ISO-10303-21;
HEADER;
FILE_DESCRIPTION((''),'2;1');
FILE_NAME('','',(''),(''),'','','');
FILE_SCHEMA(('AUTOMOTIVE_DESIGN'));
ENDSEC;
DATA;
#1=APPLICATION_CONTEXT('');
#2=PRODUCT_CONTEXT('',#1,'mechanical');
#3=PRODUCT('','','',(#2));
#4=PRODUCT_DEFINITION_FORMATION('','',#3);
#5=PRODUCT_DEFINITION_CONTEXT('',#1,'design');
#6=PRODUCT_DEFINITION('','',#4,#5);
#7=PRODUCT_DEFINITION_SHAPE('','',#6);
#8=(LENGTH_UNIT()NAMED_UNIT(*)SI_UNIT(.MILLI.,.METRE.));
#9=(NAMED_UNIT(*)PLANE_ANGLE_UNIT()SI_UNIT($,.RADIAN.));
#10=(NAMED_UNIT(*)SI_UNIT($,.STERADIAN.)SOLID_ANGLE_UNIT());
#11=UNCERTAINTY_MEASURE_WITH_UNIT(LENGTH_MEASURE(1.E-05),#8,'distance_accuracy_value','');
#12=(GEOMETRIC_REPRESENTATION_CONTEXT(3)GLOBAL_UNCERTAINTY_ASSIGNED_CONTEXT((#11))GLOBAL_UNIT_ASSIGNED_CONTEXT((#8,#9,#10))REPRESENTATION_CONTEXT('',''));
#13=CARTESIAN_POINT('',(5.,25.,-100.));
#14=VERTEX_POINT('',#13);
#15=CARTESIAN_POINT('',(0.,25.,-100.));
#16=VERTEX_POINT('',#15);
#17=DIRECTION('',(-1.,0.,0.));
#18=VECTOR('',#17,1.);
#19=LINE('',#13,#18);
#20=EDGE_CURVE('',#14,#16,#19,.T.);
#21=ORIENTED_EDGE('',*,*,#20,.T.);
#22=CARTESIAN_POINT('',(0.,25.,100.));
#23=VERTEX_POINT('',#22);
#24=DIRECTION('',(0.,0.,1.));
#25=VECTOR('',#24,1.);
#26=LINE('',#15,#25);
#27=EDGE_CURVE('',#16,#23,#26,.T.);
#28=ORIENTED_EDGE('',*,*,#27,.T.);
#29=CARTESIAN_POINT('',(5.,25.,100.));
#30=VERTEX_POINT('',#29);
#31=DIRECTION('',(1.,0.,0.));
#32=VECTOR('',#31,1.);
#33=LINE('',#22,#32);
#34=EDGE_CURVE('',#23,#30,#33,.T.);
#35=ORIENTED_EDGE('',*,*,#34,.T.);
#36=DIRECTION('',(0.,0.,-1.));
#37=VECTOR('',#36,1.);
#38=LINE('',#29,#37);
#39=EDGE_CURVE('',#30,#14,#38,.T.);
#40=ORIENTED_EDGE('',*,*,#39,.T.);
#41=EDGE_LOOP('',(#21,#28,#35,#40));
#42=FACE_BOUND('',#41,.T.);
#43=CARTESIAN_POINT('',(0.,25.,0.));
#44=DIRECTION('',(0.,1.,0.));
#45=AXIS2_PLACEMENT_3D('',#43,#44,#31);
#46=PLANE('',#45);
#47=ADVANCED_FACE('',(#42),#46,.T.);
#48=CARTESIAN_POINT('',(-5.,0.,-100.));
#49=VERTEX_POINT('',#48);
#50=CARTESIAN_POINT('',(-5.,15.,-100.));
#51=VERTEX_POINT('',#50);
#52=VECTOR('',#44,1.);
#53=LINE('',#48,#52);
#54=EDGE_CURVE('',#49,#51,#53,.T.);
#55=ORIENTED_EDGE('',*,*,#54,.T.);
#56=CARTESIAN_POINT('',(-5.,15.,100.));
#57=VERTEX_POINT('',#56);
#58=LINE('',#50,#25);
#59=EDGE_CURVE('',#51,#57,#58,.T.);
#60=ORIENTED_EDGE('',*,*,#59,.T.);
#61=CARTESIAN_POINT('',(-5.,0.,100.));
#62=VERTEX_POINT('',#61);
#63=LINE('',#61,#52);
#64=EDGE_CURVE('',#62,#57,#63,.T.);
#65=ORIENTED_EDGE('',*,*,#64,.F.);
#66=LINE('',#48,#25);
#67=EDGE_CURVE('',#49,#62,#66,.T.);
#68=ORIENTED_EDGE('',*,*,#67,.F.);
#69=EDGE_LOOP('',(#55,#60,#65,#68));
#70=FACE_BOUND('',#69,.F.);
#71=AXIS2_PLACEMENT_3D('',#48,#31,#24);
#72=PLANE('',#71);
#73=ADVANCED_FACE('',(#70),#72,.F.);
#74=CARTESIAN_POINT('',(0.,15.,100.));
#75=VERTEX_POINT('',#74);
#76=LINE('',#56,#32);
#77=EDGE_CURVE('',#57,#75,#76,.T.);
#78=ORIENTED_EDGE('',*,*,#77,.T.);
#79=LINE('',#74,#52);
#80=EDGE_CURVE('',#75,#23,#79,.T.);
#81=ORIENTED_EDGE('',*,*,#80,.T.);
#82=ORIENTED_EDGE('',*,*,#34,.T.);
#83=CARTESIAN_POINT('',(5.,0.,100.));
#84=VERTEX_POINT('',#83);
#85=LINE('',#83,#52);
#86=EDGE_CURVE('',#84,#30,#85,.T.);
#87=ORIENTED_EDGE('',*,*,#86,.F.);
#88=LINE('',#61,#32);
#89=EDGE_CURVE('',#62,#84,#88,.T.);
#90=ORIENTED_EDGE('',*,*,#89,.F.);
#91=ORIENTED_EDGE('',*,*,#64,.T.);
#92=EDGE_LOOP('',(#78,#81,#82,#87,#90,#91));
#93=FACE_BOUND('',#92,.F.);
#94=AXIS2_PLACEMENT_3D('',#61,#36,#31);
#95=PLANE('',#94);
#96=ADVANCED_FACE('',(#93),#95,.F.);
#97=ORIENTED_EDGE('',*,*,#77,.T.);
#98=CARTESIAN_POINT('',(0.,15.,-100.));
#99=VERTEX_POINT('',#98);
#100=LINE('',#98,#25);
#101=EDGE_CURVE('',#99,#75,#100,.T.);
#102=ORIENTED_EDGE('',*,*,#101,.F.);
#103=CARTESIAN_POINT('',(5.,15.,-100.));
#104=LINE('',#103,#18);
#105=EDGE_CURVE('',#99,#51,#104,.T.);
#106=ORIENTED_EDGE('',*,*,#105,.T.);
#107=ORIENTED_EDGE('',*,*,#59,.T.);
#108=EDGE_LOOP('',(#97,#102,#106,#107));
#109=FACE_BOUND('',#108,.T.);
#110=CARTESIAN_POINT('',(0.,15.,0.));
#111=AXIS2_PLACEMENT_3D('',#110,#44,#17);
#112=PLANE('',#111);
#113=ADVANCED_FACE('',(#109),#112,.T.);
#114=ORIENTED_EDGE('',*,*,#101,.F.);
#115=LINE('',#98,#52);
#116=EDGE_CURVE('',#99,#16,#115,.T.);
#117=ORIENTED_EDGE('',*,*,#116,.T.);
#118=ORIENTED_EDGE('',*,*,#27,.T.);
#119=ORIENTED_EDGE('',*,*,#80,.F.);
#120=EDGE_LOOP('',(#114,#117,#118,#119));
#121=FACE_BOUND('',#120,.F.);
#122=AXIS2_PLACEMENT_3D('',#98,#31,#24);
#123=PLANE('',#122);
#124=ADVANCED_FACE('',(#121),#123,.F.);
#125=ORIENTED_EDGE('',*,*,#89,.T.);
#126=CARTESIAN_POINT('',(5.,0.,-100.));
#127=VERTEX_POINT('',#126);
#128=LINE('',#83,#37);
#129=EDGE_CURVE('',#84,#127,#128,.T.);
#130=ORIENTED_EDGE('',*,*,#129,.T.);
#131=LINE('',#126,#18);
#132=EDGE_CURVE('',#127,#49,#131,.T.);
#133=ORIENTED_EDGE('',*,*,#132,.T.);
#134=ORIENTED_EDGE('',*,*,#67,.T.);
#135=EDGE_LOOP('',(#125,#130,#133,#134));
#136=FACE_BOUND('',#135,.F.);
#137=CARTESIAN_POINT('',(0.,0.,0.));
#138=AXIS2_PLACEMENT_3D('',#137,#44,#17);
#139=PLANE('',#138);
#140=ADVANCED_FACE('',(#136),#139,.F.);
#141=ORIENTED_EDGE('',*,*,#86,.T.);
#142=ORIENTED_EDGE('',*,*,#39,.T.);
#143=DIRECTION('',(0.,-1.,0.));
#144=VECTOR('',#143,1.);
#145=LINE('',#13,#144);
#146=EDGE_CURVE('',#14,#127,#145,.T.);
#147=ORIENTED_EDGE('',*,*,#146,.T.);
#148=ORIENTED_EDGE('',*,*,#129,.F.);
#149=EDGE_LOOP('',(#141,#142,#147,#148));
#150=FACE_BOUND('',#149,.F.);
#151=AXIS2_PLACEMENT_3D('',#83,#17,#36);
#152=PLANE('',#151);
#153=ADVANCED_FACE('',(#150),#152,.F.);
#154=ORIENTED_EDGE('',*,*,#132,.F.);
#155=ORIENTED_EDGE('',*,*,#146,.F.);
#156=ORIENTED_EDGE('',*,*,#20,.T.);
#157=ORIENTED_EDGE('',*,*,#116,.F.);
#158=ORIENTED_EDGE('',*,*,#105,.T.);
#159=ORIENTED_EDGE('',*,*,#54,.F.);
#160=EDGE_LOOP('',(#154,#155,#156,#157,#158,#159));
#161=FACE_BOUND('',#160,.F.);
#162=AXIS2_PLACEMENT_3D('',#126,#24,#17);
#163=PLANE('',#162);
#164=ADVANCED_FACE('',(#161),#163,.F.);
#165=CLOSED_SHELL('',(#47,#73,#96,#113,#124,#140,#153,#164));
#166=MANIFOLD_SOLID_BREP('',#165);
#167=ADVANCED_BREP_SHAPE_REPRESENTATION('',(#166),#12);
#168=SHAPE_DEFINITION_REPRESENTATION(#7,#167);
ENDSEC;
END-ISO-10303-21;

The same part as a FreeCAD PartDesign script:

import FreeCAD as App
import Part
import Sketcher
from FreeCAD import Vector
Q = App.Units.Quantity


def add_polygon(sketch, points):
    """Adds a closed chain of lines whose ends are joined by coincident constraints."""
    first, n = sketch.GeometryCount, len(points)
    for a, b in zip(points, points[1:] + points[:1]):
        sketch.addGeometry(Part.LineSegment(App.Vector(*a, 0), App.Vector(*b, 0)), False)
    for i in range(n):
        sketch.addConstraint(Sketcher.Constraint("Coincident", first + i, 2, first + (i + 1) % n, 1))

doc = App.newDocument("Part")
params = doc.addObject("Spreadsheet::Sheet", "Params")
for row, (alias, value) in enumerate([
    ("sketch1_width", "10 mm"),
    ("sketch1_height", "200 mm"),
    ("pad1_length", "15 mm"),
    ("sketch2_width", "5 mm"),
    ("sketch2_height", "200 mm"),
    ("pad2_length", "10 mm"),
], start=1):
    params.set(f"A{row}", alias)
    params.set(f"B{row}", "=" + value)
    params.setAlias(f"B{row}", alias)

body = doc.addObject("PartDesign::Body", "Body")

# Sketch on XZ plane
sketch1 = body.newObject("Sketcher::SketchObject", "Sketch")
sketch1.AttachmentSupport = (doc.getObject("XZ_Plane"), [""])
sketch1.MapMode = "FlatFace"
add_polygon(sketch1, [(-5, -100), (-5, 100), (5, 100), (5, -100)])  # lines 0-3
sketch1.addConstraint(Sketcher.Constraint("Vertical", 0))
sketch1.addConstraint(Sketcher.Constraint("Horizontal", 1))
sketch1.addConstraint(Sketcher.Constraint("Vertical", 2))
sketch1.addConstraint(Sketcher.Constraint("Horizontal", 3))
sketch1.addConstraint(Sketcher.Constraint("Symmetric", 0, 2, 2, 2, -1, 1))
sketch1.addConstraint(Sketcher.Constraint("DistanceX", 1, 1, 1, 2, Q("10 mm")))
sketch1.addConstraint(Sketcher.Constraint("DistanceY", 0, 1, 0, 2, Q("200 mm")))
sketch1.setExpression("Constraints[9]", "Params.sketch1_width")
sketch1.setExpression("Constraints[10]", "Params.sketch1_height")
pad1 = body.newObject("PartDesign::Pad", "Pad")
pad1.Profile = sketch1
pad1.setExpression("Length", "Params.pad1_length")
pad1.Reversed = True

# Sketch on XZ plane
sketch2 = body.newObject("Sketcher::SketchObject", "Sketch001")
sketch2.AttachmentSupport = (doc.getObject("XZ_Plane"), [""])
sketch2.MapMode = "FlatFace"
sketch2.AttachmentOffset = App.Placement(Vector(0, 0, -15), App.Rotation())
add_polygon(sketch2, [(0, -100), (0, 100), (5, 100), (5, -100)])  # lines 0-3
sketch2.addConstraint(Sketcher.Constraint("Vertical", 0))
sketch2.addConstraint(Sketcher.Constraint("Horizontal", 1))
sketch2.addConstraint(Sketcher.Constraint("Vertical", 2))
sketch2.addConstraint(Sketcher.Constraint("Horizontal", 3))
sketch2.addConstraint(Sketcher.Constraint("Symmetric", 0, 2, 3, 2, -1, 1))
sketch2.addConstraint(Sketcher.Constraint("DistanceX", 1, 1, 1, 2, Q("5 mm")))
sketch2.addConstraint(Sketcher.Constraint("DistanceY", 0, 1, 0, 2, Q("200 mm")))
sketch2.setExpression("Constraints[9]", "Params.sketch2_width")
sketch2.setExpression("Constraints[10]", "Params.sketch2_height")
pad2 = body.newObject("PartDesign::Pad", "Pad001")
pad2.Profile = sketch2
pad2.setExpression("Length", "Params.pad2_length")
pad2.Reversed = True

doc.recompute()
